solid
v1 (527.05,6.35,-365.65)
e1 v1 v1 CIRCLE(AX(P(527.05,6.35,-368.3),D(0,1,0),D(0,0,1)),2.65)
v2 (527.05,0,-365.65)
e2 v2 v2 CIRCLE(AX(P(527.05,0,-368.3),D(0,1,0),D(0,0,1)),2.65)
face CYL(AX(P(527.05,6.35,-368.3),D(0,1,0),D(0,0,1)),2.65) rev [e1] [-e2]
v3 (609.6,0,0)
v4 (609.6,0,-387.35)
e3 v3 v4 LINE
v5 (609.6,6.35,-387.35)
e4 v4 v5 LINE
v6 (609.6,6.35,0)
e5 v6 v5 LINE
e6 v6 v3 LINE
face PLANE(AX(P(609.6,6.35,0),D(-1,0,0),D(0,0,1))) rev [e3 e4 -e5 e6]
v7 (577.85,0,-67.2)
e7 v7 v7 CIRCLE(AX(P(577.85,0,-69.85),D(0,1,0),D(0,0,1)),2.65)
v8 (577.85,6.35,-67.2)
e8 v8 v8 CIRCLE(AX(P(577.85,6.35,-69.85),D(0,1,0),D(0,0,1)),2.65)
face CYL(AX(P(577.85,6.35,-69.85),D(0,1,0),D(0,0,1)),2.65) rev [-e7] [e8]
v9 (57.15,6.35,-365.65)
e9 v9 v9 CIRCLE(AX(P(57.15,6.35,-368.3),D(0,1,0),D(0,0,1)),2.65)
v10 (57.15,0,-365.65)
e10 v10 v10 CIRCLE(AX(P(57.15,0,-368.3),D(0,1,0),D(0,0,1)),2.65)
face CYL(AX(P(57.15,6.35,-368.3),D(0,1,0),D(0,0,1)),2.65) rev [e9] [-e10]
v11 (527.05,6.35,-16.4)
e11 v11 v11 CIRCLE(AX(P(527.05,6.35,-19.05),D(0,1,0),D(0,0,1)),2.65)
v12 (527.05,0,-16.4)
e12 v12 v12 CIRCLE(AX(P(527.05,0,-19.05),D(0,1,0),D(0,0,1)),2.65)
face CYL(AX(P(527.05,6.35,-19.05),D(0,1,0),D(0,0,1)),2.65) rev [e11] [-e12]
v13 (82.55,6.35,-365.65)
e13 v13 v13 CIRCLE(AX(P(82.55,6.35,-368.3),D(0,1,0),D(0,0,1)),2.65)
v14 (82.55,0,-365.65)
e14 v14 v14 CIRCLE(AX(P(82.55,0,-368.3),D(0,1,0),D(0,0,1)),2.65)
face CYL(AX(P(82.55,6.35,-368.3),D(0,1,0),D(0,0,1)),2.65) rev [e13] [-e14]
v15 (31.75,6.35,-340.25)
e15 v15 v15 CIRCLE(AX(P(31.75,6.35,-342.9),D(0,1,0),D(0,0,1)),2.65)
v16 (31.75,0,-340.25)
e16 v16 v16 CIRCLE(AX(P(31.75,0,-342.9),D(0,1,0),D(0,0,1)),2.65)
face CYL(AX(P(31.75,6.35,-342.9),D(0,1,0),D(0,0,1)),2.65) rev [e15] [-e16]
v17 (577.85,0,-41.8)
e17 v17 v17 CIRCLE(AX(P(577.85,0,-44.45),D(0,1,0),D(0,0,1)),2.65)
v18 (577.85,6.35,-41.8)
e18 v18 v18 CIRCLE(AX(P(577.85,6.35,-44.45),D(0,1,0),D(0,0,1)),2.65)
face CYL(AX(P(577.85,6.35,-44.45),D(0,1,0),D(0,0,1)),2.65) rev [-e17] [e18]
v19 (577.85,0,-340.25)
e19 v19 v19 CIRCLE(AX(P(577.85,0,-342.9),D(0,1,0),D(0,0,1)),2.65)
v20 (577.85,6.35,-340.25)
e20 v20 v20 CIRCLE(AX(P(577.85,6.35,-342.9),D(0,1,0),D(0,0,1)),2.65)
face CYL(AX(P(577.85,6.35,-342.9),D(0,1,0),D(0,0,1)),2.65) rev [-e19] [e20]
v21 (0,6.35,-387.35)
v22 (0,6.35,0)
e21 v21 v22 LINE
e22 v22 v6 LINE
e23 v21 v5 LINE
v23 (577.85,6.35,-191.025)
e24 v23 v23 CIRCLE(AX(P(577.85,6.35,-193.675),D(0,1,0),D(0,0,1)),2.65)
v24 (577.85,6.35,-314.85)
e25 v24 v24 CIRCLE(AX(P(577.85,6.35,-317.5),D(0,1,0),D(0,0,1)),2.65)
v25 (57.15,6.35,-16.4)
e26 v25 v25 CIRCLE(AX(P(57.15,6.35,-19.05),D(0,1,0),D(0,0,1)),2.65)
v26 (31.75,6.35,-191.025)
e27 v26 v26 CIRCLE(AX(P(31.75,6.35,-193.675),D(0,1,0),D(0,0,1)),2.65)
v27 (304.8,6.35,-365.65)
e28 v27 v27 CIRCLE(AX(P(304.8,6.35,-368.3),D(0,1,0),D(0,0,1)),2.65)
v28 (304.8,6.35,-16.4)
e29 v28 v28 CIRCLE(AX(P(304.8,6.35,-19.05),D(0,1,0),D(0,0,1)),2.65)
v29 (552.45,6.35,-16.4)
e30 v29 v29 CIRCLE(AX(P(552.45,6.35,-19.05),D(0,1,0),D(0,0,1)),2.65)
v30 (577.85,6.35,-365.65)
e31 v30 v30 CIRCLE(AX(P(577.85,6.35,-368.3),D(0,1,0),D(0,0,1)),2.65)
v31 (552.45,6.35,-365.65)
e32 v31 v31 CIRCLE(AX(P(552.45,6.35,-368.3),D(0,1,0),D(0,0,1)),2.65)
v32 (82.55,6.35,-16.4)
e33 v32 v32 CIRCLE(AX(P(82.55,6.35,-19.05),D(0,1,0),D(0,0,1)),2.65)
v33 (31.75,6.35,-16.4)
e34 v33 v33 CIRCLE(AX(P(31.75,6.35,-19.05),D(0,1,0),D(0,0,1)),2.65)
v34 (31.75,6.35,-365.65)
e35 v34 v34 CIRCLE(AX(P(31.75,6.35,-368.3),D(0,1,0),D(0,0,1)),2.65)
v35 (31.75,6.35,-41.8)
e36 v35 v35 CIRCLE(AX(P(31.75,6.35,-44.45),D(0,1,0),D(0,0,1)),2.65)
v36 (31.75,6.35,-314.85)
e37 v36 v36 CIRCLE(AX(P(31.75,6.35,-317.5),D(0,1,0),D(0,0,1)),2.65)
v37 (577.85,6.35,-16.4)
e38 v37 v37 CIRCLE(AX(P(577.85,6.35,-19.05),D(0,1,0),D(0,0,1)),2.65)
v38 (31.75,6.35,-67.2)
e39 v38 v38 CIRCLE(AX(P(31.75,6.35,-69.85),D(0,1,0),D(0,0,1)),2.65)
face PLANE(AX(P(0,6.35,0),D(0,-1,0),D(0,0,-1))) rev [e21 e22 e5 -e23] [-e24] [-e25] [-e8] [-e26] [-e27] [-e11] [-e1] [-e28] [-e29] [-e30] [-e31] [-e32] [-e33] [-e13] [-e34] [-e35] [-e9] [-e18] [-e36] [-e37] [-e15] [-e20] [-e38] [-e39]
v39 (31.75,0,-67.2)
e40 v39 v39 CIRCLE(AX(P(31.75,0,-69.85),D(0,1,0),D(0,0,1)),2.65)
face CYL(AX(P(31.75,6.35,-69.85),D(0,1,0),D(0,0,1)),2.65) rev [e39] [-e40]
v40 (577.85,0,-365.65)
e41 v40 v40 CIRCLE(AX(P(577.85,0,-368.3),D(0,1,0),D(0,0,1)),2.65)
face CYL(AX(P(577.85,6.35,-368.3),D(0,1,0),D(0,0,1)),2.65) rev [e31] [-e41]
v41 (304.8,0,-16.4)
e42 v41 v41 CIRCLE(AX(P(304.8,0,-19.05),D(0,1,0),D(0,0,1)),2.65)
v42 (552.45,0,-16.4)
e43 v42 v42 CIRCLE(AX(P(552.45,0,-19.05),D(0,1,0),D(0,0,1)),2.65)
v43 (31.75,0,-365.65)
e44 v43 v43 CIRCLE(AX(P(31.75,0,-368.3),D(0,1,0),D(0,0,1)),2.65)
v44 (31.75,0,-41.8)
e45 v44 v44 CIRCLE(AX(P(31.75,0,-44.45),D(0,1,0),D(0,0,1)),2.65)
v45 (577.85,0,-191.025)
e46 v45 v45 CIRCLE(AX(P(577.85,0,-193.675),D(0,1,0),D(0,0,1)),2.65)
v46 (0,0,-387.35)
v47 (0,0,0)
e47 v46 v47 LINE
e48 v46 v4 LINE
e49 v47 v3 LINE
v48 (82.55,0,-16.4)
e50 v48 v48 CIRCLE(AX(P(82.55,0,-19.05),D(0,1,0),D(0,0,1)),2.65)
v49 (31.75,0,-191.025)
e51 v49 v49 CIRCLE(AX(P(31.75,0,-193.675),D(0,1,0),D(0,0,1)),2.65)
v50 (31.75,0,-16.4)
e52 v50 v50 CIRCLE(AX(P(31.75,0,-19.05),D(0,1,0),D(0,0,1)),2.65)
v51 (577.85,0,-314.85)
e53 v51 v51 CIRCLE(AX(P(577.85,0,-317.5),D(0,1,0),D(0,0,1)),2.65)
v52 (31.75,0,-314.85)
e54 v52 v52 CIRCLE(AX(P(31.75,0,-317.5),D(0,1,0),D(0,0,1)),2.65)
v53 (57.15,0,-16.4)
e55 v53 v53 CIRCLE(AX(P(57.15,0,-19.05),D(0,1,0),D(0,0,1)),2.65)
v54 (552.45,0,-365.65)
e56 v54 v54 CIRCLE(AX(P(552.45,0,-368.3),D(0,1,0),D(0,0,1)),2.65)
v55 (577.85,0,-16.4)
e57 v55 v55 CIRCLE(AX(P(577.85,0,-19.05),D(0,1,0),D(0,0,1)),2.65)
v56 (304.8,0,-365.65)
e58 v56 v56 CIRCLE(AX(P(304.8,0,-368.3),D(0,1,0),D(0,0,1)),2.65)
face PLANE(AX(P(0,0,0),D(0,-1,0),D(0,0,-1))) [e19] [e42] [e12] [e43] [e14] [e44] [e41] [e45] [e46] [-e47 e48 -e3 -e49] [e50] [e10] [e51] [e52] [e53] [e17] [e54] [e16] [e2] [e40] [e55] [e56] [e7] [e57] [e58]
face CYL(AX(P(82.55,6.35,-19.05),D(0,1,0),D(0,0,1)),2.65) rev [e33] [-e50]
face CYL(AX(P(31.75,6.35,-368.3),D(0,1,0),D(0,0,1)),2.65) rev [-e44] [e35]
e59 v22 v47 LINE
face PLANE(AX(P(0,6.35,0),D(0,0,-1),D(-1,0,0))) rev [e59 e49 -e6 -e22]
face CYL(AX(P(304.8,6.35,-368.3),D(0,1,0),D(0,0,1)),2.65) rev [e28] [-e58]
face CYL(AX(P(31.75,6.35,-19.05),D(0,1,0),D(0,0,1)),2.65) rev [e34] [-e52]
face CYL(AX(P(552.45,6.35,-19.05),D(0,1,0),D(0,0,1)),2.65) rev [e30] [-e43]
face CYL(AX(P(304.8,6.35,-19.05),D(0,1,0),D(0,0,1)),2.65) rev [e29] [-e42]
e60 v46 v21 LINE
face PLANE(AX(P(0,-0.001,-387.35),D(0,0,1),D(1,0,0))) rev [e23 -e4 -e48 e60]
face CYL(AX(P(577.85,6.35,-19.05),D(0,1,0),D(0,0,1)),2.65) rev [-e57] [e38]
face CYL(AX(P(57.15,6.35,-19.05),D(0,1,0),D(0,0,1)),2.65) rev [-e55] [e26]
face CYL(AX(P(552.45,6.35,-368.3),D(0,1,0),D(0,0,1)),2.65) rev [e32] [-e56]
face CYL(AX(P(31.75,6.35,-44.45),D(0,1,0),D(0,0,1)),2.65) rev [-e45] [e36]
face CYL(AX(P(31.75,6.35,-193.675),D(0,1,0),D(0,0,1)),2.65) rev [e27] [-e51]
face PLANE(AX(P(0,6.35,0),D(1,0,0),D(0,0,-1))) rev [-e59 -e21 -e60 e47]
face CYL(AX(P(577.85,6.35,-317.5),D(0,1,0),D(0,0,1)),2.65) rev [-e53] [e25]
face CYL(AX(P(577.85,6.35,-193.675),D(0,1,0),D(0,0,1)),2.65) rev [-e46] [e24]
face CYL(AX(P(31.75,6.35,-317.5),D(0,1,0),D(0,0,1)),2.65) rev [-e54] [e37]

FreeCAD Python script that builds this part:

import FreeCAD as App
import Part
import Sketcher

V = App.Vector
Q = App.Units.Quantity


def add_polygon(sketch, points):
    """Adds a closed chain of lines whose ends are joined by coincident constraints."""
    first, n = sketch.GeometryCount, len(points)
    for a, b in zip(points, points[1:] + points[:1]):
        sketch.addGeometry(Part.LineSegment(App.Vector(*a, 0), App.Vector(*b, 0)), False)
    for i in range(n):
        sketch.addConstraint(Sketcher.Constraint("Coincident", first + i, 2, first + (i + 1) % n, 1))

doc = App.newDocument("Part")
body = doc.addObject("PartDesign::Body", "Body")

sketch1 = body.newObject("Sketcher::SketchObject", "Sketch")
sketch1.AttachmentSupport = (doc.getObject("XZ_Plane"), [""])
sketch1.MapMode = "FlatFace"
add_polygon(sketch1, [(0, -610), (0, 0), (610, 0), (610, -610)])
sketch1.addConstraint([
    Sketcher.Constraint("Vertical", 0),
    Sketcher.Constraint("Horizontal", 1),
    Sketcher.Constraint("Vertical", 2),
    Sketcher.Constraint("Horizontal", 3),
    Sketcher.Constraint("Coincident", 0, 2, -1, 1),
    Sketcher.Constraint("Equal", 3, 0),
    Sketcher.Constraint("DistanceX", 1, 1, 1, 2, Q("24 in")),
])
pad1 = body.newObject("PartDesign::Pad", "Pad")
pad1.Profile = sketch1
pad1.Length = Q("0.25 in")
pad1.Reversed = True

sketch2 = body.newObject("Sketcher::SketchObject", "Sketch001")
sketch2.AttachmentSupport = (doc.getObject("XZ_Plane"), [""])
sketch2.MapMode = "FlatFace"
sketch2.AttachmentOffset = App.Placement(V(0, 0, -0.25 * 25.4), App.Rotation())
add_polygon(sketch2, [(0, -610), (0, -387), (610, -387), (610, -610)])
sketch2.addConstraint([
    Sketcher.Constraint("Vertical", 0),
    Sketcher.Constraint("Horizontal", 1),
    Sketcher.Constraint("Vertical", 2),
    Sketcher.Constraint("Horizontal", 3),
    Sketcher.Constraint("PointOnObject", 0, 2, -2),
    Sketcher.Constraint("DistanceX", 1, 1, 1, 2, Q("24 in")),
    Sketcher.Constraint("DistanceY", 2, 2, -1, 1, Q("24 in")),
    Sketcher.Constraint("DistanceY", 0, 1, 0, 2, Q("8.75 in")),
])
pad2 = body.newObject("PartDesign::Pad", "Pad001")
pad2.Profile = sketch2
pad2.Length = Q("1 in")
pad2.Reversed = True

sketch3 = body.newObject("Sketcher::SketchObject", "Sketch002")
sketch3.AttachmentSupport = (doc.getObject("XZ_Plane"), [""])
sketch3.MapMode = "FlatFace"
sketch3.AttachmentOffset = App.Placement(V(0, 0, -0.25 * 25.4), App.Rotation())
sketch3.addGeometry([
    Part.Circle(V(31.8, -368.3, 0), V(0, 0, 1), 2.6),
    Part.Circle(V(57.1, -368.3, 0), V(0, 0, 1), 2.6),
    Part.Circle(V(82.5, -368.3, 0), V(0, 0, 1), 2.6),
    Part.Circle(V(31.8, -342.9, 0), V(0, 0, 1), 2.6),
    Part.Circle(V(31.8, -317.5, 0), V(0, 0, 1), 2.6),
    Part.Circle(V(31.8, -69.8, 0), V(0, 0, 1), 2.6),
    Part.Circle(V(31.8, -44.5, 0), V(0, 0, 1), 2.6),
    Part.Circle(V(31.8, -19.1, 0), V(0, 0, 1), 2.6),
    Part.Circle(V(57.1, -19.1, 0), V(0, 0, 1), 2.6),
    Part.Circle(V(82.5, -19.1, 0), V(0, 0, 1), 2.6),
    Part.Circle(V(304.8, -19.1, 0), V(0, 0, 1), 2.6),
    Part.Circle(V(31.8, -193.7, 0), V(0, 0, 1), 2.6),
    Part.Circle(V(304.8, -368.3, 0), V(0, 0, 1), 2.6),
    Part.Circle(V(577.9, -193.7, 0), V(0, 0, 1), 2.6),
    Part.Circle(V(527, -368.3, 0), V(0, 0, 1), 2.6),
    Part.Circle(V(552.5, -368.3, 0), V(0, 0, 1), 2.6),
    Part.Circle(V(577.9, -368.3, 0), V(0, 0, 1), 2.6),
    Part.Circle(V(577.9, -342.9, 0), V(0, 0, 1), 2.6),
    Part.Circle(V(577.9, -317.5, 0), V(0, 0, 1), 2.6),
    Part.Circle(V(577.9, -69.8, 0), V(0, 0, 1), 2.6),
    Part.Circle(V(577.9, -44.5, 0), V(0, 0, 1), 2.6),
    Part.Circle(V(577.9, -19.1, 0), V(0, 0, 1), 2.6),
    Part.Circle(V(552.5, -19.1, 0), V(0, 0, 1), 2.6),
    Part.Circle(V(527, -19.1, 0), V(0, 0, 1), 2.6),
], False)
sketch3.addConstraint([
    Sketcher.Constraint("Equal", 0, 1),
    Sketcher.Constraint("Equal", 1, 2),
    Sketcher.Constraint("Equal", 2, 3),
    Sketcher.Constraint("Equal", 3, 4),
    Sketcher.Constraint("Equal", 4, 5),
    Sketcher.Constraint("Equal", 5, 6),
    Sketcher.Constraint("Equal", 6, 7),
    Sketcher.Constraint("Equal", 7, 8),
    Sketcher.Constraint("Equal", 8, 9),
    Sketcher.Constraint("Equal", 9, 10),
    Sketcher.Constraint("Equal", 10, 11),
    Sketcher.Constraint("Equal", 11, 12),
    Sketcher.Constraint("Equal", 12, 13),
    Sketcher.Constraint("Equal", 13, 14),
    Sketcher.Constraint("Equal", 14, 15),
    Sketcher.Constraint("Equal", 15, 16),
    Sketcher.Constraint("Equal", 16, 17),
    Sketcher.Constraint("Equal", 17, 18),
    Sketcher.Constraint("Equal", 18, 19),
    Sketcher.Constraint("Equal", 19, 20),
    Sketcher.Constraint("Equal", 20, 21),
    Sketcher.Constraint("Equal", 21, 22),
    Sketcher.Constraint("Equal", 22, 23),
    Sketcher.Constraint("Horizontal", 0, 3, 1, 3),
    Sketcher.Constraint("Horizontal", 1, 3, 2, 3),
    Sketcher.Constraint("Horizontal", 7, 3, 8, 3),
    Sketcher.Constraint("Horizontal", 8, 3, 9, 3),
    Sketcher.Constraint("Horizontal", 9, 3, 10, 3),
    Sketcher.Constraint("Horizontal", 2, 3, 12, 3),
    Sketcher.Constraint("Horizontal", 11, 3, 13, 3),
    Sketcher.Constraint("Horizontal", 12, 3, 14, 3),
    Sketcher.Constraint("Horizontal", 14, 3, 15, 3),
    Sketcher.Constraint("Horizontal", 15, 3, 16, 3),
    Sketcher.Constraint("Horizontal", 3, 3, 17, 3),
    Sketcher.Constraint("Horizontal", 4, 3, 18, 3),
    Sketcher.Constraint("Horizontal", 5, 3, 19, 3),
    Sketcher.Constraint("Horizontal", 6, 3, 20, 3),
    Sketcher.Constraint("Horizontal", 10, 3, 21, 3),
    Sketcher.Constraint("Horizontal", 21, 3, 22, 3),
    Sketcher.Constraint("Horizontal", 22, 3, 23, 3),
    Sketcher.Constraint("Vertical", 0, 3, 3, 3),
    Sketcher.Constraint("Vertical", 3, 3, 4, 3),
    Sketcher.Constraint("Vertical", 4, 3, 5, 3),
    Sketcher.Constraint("Vertical", 5, 3, 6, 3),
    Sketcher.Constraint("Vertical", 6, 3, 7, 3),
    Sketcher.Constraint("Vertical", 1, 3, 8, 3),
    Sketcher.Constraint("Vertical", 2, 3, 9, 3),
    Sketcher.Constraint("Vertical", 7, 3, 11, 3),
    Sketcher.Constraint("Vertical", 10, 3, 12, 3),
    Sketcher.Constraint("Vertical", 13, 3, 16, 3),
    Sketcher.Constraint("Vertical", 16, 3, 17, 3),
    Sketcher.Constraint("Vertical", 17, 3, 18, 3),
    Sketcher.Constraint("Vertical", 18, 3, 19, 3),
    Sketcher.Constraint("Vertical", 19, 3, 20, 3),
    Sketcher.Constraint("Vertical", 20, 3, 21, 3),
    Sketcher.Constraint("Vertical", 15, 3, 22, 3),
    Sketcher.Constraint("Vertical", 14, 3, 23, 3),
    Sketcher.Constraint("DistanceX", -1, 1, 10, 3, Q("12 in")),
    Sketcher.Constraint("DistanceX", 0, 3, 1, 3, Q("1 in")),
    Sketcher.Constraint("DistanceX", 1, 3, 2, 3, Q("1 in")),
    Sketcher.Constraint("DistanceY", 0, 3, 3, 3, Q("1 in")),
    Sketcher.Constraint("DistanceY", 3, 3, 4, 3, Q("1 in")),
    Sketcher.Constraint("DistanceY", 5, 3, 6, 3, Q("1 in")),
    Sketcher.Constraint("DistanceY", 6, 3, 7, 3, Q("1 in")),
    Sketcher.Constraint("DistanceX", 14, 3, 13, 3, Q("2 in")),
    Sketcher.Constraint("DistanceX", 14, 3, 15, 3, Q("1 in")),
    Sketcher.Constraint("DistanceY", 0, 3, -1, 1, Q("14.5 in")),
    Sketcher.Constraint("DistanceX", 2, 3, 13, 3, Q("19.5 in")),
    Sketcher.Constraint("Diameter", 0, Q("5.3 mm")),
    Sketcher.Constraint("DistanceX", -1, 1, 0, 3, Q("1.25 in")),
    Sketcher.Constraint("DistanceY", 5, 3, -1, 1, Q("2.75 in")),
    Sketcher.Constraint("DistanceY", 11, 3, -1, 1, Q("7.625 in")),
])
doc.recompute()
hole = body.newObject("PartDesign::Hole", "Hole")
hole.Profile = sketch3
hole.ThreadType = "None"
hole.Diameter = 5.3
hole.DepthType = "ThroughAll"
hole.Reversed = True

sketch4 = body.newObject("Sketcher::SketchObject", "Sketch003")
sketch4.AttachmentSupport = (doc.getObject("XZ_Plane"), [""])
sketch4.MapMode = "FlatFace"
sketch4.AttachmentOffset = App.Placement(V(0, 0, -1.25 * 25.4), App.Rotation())
add_polygon(sketch4, [(0, -610), (0, -387), (610, -387), (610, -610)])
sketch4.addConstraint([
    Sketcher.Constraint("Vertical", 0),
    Sketcher.Constraint("Horizontal", 1),
    Sketcher.Constraint("Vertical", 2),
    Sketcher.Constraint("Horizontal", 3),
    Sketcher.Constraint("PointOnObject", 0, 2, -2),
    Sketcher.Constraint("DistanceX", 1, 1, 1, 2, Q("24 in")),
    Sketcher.Constraint("DistanceY", 2, 2, -1, 1, Q("24 in")),
    Sketcher.Constraint("DistanceY", 0, 1, 0, 2, Q("8.75 in")),
])
pocket1 = body.newObject("PartDesign::Pocket", "Pocket")
pocket1.Profile = sketch4
pocket1.Type = "UpToFirst"
pocket1.Reversed = True

doc.recompute()
